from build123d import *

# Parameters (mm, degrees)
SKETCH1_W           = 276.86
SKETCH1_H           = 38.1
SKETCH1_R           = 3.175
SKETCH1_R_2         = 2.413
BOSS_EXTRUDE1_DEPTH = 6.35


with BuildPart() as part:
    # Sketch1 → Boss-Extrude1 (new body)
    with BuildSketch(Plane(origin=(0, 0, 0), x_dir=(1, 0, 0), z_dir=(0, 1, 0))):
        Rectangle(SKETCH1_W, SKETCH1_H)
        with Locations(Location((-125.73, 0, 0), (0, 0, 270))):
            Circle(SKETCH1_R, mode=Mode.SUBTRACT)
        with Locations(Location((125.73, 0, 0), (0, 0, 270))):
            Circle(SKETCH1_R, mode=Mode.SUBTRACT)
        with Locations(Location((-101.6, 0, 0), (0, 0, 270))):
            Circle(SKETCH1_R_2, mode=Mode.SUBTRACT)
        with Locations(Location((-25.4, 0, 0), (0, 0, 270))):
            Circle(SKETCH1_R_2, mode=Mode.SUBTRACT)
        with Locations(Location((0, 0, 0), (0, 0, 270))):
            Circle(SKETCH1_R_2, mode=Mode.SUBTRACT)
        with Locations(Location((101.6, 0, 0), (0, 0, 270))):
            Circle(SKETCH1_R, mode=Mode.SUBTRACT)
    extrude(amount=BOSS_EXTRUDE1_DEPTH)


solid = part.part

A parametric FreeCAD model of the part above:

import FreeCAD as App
import Part
import Sketcher
Q = App.Units.Quantity


def add_polygon(sketch, points):
    """Adds a closed chain of lines whose ends are joined by coincident constraints."""
    first, n = sketch.GeometryCount, len(points)
    for a, b in zip(points, points[1:] + points[:1]):
        sketch.addGeometry(Part.LineSegment(App.Vector(*a, 0), App.Vector(*b, 0)), False)
    for i in range(n):
        sketch.addConstraint(Sketcher.Constraint("Coincident", first + i, 2, first + (i + 1) % n, 1))

doc = App.newDocument("Part")
params = doc.addObject("Spreadsheet::Sheet", "Params")
for row, (alias, value) in enumerate([
    ("sketch1_diameter", "0.25 in"),
    ("sketch1_diameter2", "0.19 in"),
    ("sketch1_width", "10.9 in"),
    ("sketch1_height", "1.5 in"),
    ("pad1_length", "0.25 in"),
], start=1):
    params.set(f"A{row}", alias)
    params.set(f"B{row}", "=" + value)
    params.setAlias(f"B{row}", alias)

body = doc.addObject("PartDesign::Body", "Body")

# Sketch on XZ plane
sketch1 = body.newObject("Sketcher::SketchObject", "Sketch")
sketch1.AttachmentSupport = (doc.getObject("XZ_Plane"), [""])
sketch1.MapMode = "FlatFace"
add_polygon(sketch1, [(-138.4, -19.1), (-138.4, 19.1), (138.4, 19.1), (138.4, -19.1)])  # lines 0-3
sketch1.addGeometry(Part.Circle(App.Vector(-125.7, 0, 0), App.Vector(0, 0, 1), 3.2), False)  # 4
sketch1.addGeometry(Part.Circle(App.Vector(-101.6, 0, 0), App.Vector(0, 0, 1), 2.4), False)  # 5
sketch1.addGeometry(Part.Circle(App.Vector(-25.4, 0, 0), App.Vector(0, 0, 1), 2.4), False)  # 6
sketch1.addGeometry(Part.Circle(App.Vector(0, 0, 0), App.Vector(0, 0, 1), 2.4), False)  # 7
sketch1.addGeometry(Part.Circle(App.Vector(101.6, 0, 0), App.Vector(0, 0, 1), 3.2), False)  # 8
sketch1.addGeometry(Part.Circle(App.Vector(125.7, 0, 0), App.Vector(0, 0, 1), 3.2), False)  # 9
sketch1.addConstraint(Sketcher.Constraint("Vertical", 0))
sketch1.addConstraint(Sketcher.Constraint("Horizontal", 1))
sketch1.addConstraint(Sketcher.Constraint("Vertical", 2))
sketch1.addConstraint(Sketcher.Constraint("Horizontal", 3))
sketch1.addConstraint(Sketcher.Constraint("Coincident", 7, 3, -1, 1))
sketch1.addConstraint(Sketcher.Constraint("Equal", 5, 6))
sketch1.addConstraint(Sketcher.Constraint("Equal", 6, 7))
sketch1.addConstraint(Sketcher.Constraint("Equal", 4, 8))
sketch1.addConstraint(Sketcher.Constraint("Equal", 8, 9))
sketch1.addConstraint(Sketcher.Constraint("Symmetric", 5, 3, 8, 3, -1, 1))
sketch1.addConstraint(Sketcher.Constraint("Symmetric", 4, 3, 9, 3, -1, 1))
sketch1.addConstraint(Sketcher.Constraint("Symmetric", 0, 2, 2, 2, -1, 1))
sketch1.addConstraint(Sketcher.Constraint("PointOnObject", 4, 3, -1))
sketch1.addConstraint(Sketcher.Constraint("PointOnObject", 5, 3, -1))
sketch1.addConstraint(Sketcher.Constraint("PointOnObject", 6, 3, -1))
sketch1.addConstraint(Sketcher.Constraint("Diameter", 4, Q("0.25 in")))
sketch1.addConstraint(Sketcher.Constraint("Diameter", 5, Q("0.19 in")))
sketch1.addConstraint(Sketcher.Constraint("DistanceX", 1, 1, 1, 2, Q("10.9 in")))
sketch1.addConstraint(Sketcher.Constraint("DistanceY", 0, 1, 0, 2, Q("1.5 in")))
sketch1.addConstraint(Sketcher.Constraint("DistanceX", 5, 3, -1, 1, Q("4 in")))
sketch1.addConstraint(Sketcher.Constraint("DistanceX", 6, 3, -1, 1, Q("1 in")))
sketch1.addConstraint(Sketcher.Constraint("DistanceX", 4, 3, 9, 3, Q("9.9 in")))
sketch1.setExpression("Constraints[19]", "Params.sketch1_diameter")
sketch1.setExpression("Constraints[20]", "Params.sketch1_diameter2")
sketch1.setExpression("Constraints[21]", "Params.sketch1_width")
sketch1.setExpression("Constraints[22]", "Params.sketch1_height")
pad1 = body.newObject("PartDesign::Pad", "Pad")
pad1.Profile = sketch1
pad1.setExpression("Length", "Params.pad1_length")
pad1.Reversed = True

doc.recompute()
